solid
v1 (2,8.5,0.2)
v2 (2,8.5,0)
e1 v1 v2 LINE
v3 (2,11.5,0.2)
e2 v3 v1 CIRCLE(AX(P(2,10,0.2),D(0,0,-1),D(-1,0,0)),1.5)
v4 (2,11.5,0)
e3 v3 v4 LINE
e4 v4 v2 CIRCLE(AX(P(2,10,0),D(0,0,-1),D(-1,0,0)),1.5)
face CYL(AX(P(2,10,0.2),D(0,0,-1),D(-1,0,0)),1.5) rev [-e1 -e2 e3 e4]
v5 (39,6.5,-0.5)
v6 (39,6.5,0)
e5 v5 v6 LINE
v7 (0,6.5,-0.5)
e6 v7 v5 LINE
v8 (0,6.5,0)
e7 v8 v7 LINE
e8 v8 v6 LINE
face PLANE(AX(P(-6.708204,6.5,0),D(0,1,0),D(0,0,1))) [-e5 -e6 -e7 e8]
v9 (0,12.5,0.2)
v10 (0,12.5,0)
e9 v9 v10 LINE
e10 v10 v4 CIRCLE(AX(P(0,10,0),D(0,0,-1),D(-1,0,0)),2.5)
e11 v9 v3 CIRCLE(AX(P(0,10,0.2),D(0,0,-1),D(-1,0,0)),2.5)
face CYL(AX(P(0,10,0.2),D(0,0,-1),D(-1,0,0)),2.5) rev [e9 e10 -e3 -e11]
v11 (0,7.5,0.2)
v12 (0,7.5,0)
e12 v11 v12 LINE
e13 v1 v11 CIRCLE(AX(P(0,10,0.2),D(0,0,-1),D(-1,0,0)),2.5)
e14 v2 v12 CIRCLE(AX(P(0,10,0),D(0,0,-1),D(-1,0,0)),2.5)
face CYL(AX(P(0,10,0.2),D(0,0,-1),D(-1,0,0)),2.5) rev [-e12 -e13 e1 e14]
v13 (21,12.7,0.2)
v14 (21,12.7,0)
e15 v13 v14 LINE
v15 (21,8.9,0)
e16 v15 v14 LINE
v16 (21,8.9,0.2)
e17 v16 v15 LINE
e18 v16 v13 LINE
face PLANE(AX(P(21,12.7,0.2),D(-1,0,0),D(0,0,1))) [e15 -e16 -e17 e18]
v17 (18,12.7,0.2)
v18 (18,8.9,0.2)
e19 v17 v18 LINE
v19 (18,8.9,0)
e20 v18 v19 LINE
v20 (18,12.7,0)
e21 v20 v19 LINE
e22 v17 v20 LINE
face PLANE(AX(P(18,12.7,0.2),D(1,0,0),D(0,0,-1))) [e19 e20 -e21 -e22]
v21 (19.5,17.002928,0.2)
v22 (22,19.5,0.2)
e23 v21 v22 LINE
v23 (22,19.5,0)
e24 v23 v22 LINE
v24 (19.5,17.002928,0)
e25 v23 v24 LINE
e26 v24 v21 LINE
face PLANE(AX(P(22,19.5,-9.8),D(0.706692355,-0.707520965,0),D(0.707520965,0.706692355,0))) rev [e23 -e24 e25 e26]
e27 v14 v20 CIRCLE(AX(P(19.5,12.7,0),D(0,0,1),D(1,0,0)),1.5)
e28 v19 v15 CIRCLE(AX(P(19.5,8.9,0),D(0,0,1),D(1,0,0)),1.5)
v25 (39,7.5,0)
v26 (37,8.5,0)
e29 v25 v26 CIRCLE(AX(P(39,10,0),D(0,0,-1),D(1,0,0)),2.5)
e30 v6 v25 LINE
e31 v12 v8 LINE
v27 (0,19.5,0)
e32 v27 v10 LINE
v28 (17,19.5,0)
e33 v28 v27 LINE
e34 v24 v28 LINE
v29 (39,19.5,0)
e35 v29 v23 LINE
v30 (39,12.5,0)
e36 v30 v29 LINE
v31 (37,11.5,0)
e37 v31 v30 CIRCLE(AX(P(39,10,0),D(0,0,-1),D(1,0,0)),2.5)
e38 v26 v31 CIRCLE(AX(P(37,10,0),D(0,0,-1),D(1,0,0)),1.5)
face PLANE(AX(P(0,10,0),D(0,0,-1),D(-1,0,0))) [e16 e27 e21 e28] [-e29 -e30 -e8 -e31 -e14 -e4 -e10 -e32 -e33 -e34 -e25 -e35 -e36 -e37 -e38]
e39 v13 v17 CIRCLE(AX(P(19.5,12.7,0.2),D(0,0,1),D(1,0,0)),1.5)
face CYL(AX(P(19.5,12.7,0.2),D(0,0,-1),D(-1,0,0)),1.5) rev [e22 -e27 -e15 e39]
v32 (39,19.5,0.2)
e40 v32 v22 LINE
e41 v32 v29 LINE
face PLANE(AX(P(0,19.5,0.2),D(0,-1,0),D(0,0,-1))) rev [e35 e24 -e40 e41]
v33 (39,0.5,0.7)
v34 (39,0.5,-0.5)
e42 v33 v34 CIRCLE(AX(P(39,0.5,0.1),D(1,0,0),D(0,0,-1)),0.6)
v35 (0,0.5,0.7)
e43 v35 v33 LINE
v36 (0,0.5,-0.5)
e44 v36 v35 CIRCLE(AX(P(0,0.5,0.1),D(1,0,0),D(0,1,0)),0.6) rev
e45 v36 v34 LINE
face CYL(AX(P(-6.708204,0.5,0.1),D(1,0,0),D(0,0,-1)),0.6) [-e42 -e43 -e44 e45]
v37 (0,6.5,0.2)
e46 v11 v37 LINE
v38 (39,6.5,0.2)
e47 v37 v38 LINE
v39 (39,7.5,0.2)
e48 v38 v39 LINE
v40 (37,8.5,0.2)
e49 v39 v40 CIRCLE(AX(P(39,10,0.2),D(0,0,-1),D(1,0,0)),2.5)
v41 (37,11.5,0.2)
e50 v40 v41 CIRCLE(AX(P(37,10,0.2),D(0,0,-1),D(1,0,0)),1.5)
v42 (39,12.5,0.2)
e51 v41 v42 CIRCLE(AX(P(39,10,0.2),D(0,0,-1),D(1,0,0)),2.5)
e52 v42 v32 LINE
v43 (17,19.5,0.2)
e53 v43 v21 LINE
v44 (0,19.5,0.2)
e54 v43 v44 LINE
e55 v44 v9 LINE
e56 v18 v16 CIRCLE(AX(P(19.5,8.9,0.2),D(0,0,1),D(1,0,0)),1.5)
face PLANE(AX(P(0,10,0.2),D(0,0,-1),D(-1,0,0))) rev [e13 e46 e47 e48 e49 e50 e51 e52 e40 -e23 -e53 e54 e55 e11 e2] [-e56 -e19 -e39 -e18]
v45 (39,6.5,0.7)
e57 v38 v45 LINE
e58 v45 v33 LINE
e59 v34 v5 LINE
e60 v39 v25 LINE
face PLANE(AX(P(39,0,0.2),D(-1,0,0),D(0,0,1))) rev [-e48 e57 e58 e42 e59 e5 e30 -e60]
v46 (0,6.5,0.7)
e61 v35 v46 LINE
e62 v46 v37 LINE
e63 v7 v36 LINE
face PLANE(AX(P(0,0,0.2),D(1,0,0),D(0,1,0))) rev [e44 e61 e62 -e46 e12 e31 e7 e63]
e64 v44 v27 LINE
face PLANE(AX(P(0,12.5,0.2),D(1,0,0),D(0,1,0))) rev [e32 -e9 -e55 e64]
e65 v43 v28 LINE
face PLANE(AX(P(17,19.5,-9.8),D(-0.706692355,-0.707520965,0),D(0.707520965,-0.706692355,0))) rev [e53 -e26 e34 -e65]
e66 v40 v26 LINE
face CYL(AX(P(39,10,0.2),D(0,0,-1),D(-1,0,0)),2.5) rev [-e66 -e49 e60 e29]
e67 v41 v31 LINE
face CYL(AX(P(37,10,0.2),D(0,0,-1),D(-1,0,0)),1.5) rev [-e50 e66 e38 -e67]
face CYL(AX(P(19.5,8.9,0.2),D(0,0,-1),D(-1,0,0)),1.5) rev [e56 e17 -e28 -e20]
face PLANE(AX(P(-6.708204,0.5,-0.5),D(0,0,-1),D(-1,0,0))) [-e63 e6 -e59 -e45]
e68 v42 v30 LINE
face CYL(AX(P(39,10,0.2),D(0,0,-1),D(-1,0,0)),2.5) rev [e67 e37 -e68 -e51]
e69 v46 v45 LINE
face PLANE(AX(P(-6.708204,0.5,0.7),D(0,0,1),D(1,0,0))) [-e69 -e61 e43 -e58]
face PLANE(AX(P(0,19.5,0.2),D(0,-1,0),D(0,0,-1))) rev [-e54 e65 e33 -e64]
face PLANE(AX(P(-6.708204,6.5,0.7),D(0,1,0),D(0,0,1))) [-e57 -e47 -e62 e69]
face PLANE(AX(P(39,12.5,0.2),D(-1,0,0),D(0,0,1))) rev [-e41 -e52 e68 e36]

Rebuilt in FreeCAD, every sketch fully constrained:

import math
import FreeCAD as App
import Part
import Sketcher

V = App.Vector
Q = App.Units.Quantity


def add_polygon(sketch, points):
    """Adds a closed chain of lines whose ends are joined by coincident constraints."""
    first, n = sketch.GeometryCount, len(points)
    for a, b in zip(points, points[1:] + points[:1]):
        sketch.addGeometry(Part.LineSegment(App.Vector(*a, 0), App.Vector(*b, 0)), False)
    for i in range(n):
        sketch.addConstraint(Sketcher.Constraint("Coincident", first + i, 2, first + (i + 1) % n, 1))

doc = App.newDocument("Part")
params = doc.addObject("Spreadsheet::Sheet", "Params")
for row, (alias, value) in enumerate([
    ("sketch1_radius", "2.5 mm"),
    ("sketch1_radius2", "1.5 mm"),
    ("sketch1_width", "39 mm"),
    ("sketch1_height", "7 mm"),
    ("sketch1_height2", "7.5 mm"),
    ("pad1_length", "0.2 mm"),
    ("sketch2_radius", "0.6 mm"),
    ("sketch2_width", "6 mm"),
    ("sketch2_width2", "6.5 mm"),
    ("sketch2_height", "0.5 mm"),
    ("pad2_length", "39 mm"),
    ("sketch3_width", "5 mm"),
    ("pocket1_length", "10 mm"),
], start=1):
    params.set(f"A{row}", alias)
    params.set(f"B{row}", "=" + value)
    params.setAlias(f"B{row}", alias)

body = doc.addObject("PartDesign::Body", "Body")

# Sketch on XY plane
sketch1 = body.newObject("Sketcher::SketchObject", "Sketch")
sketch1.AttachmentSupport = (doc.getObject("XY_Plane"), [""])
sketch1.MapMode = "FlatFace"
sketch1.addGeometry([
    Part.LineSegment(V(0, 0, 0), V(39, 0, 0)),  # 0
    Part.LineSegment(V(39, 0, 0), V(39, 7.5, 0)),  # 1
    Part.ArcOfCircle(Part.Circle(V(39, 10, 0), V(0, 0, 1), 2.5), math.radians(-143), math.radians(-90)),  # 2
    Part.ArcOfCircle(Part.Circle(V(37, 10, 0), V(0, 0, 1), 1.5), math.radians(90), math.radians(270)),  # 3
    Part.ArcOfCircle(Part.Circle(V(39, 10, 0), V(0, 0, 1), 2.5), math.radians(90), math.radians(143)),  # 4
    Part.LineSegment(V(39, 12.5, 0), V(39, 19.5, 0)),  # 5
    Part.LineSegment(V(39, 19.5, 0), V(0, 19.5, 0)),  # 6
    Part.LineSegment(V(0, 19.5, 0), V(0, 12.5, 0)),  # 7
    Part.ArcOfCircle(Part.Circle(V(0, 10, 0), V(0, 0, 1), 2.5), math.radians(37), math.radians(90)),  # 8
    Part.ArcOfCircle(Part.Circle(V(2, 10, 0), V(0, 0, 1), 1.5), math.radians(-90), math.radians(90)),  # 9
    Part.ArcOfCircle(Part.Circle(V(0, 10, 0), V(0, 0, 1), 2.5), math.radians(-90), math.radians(-37)),  # 10
    Part.LineSegment(V(0, 7.5, 0), V(0, 0, 0)),  # 11
    Part.ArcOfCircle(Part.Circle(V(19.5, 12.7, 0), V(0, 0, 1), 1.5), math.radians(0), math.radians(180)),  # 12
    Part.LineSegment(V(21, 12.7, 0), V(21, 8.9, 0)),  # 13
    Part.ArcOfCircle(Part.Circle(V(19.5, 8.9, 0), V(0, 0, 1), 1.5), math.radians(180), math.radians(360)),  # 14
    Part.LineSegment(V(18, 8.9, 0), V(18, 12.7, 0)),  # 15
], False)
sketch1.addConstraint([
    Sketcher.Constraint("Coincident", 0, 2, 1, 1),
    Sketcher.Constraint("Coincident", 1, 2, 2, 2),
    Sketcher.Constraint("Coincident", 2, 1, 3, 2),
    Sketcher.Constraint("Coincident", 3, 1, 4, 2),
    Sketcher.Constraint("Coincident", 4, 1, 5, 1),
    Sketcher.Constraint("Coincident", 5, 2, 6, 1),
    Sketcher.Constraint("Coincident", 6, 2, 7, 1),
    Sketcher.Constraint("Coincident", 7, 2, 8, 2),
    Sketcher.Constraint("Coincident", 8, 1, 9, 2),
    Sketcher.Constraint("Coincident", 9, 1, 10, 2),
    Sketcher.Constraint("Coincident", 10, 1, 11, 1),
    Sketcher.Constraint("Coincident", 11, 2, 0, 1),
    Sketcher.Constraint("Tangent", 12, 1, 13, 1),
    Sketcher.Constraint("Tangent", 13, 2, 14, 2),
    Sketcher.Constraint("Tangent", 14, 1, 15, 1),
    Sketcher.Constraint("Tangent", 15, 2, 12, 2),
    Sketcher.Constraint("Horizontal", 0),
    Sketcher.Constraint("Vertical", 1),
    Sketcher.Constraint("Vertical", 5),
    Sketcher.Constraint("Horizontal", 6),
    Sketcher.Constraint("Vertical", 7),
    Sketcher.Constraint("Vertical", 11),
    Sketcher.Constraint("Vertical", 13),
    Sketcher.Constraint("Vertical", 15),
    Sketcher.Constraint("Coincident", 11, 2, -1, 1),
    Sketcher.Constraint("Coincident", 4, 3, 2, 3),
    Sketcher.Constraint("Coincident", 10, 3, 8, 3),
    Sketcher.Constraint("Equal", 2, 4),
    Sketcher.Constraint("Equal", 4, 8),
    Sketcher.Constraint("Equal", 3, 9),
    Sketcher.Constraint("Equal", 8, 10),
    Sketcher.Constraint("Equal", 9, 12),
    Sketcher.Constraint("PointOnObject", 8, 3, -2),
    Sketcher.Constraint("PointOnObject", 6, 2, -2),
    Sketcher.Constraint("Horizontal", 2, 3, 3, 3),
    Sketcher.Constraint("Horizontal", 4, 3, 8, 3),
    Sketcher.Constraint("Horizontal", 8, 3, 9, 3),
    Sketcher.Constraint("Vertical", 4, 3, 0, 2),
    Sketcher.Constraint("Vertical", 3, 3, 2, 1),
    Sketcher.Constraint("Vertical", 1, 2, 4, 1),
    Sketcher.Constraint("Vertical", 9, 3, 8, 1),
    Sketcher.Constraint("Radius", 2, Q("2.5 mm")),
    Sketcher.Constraint("Radius", 3, Q("1.5 mm")),
    Sketcher.Constraint("DistanceX", 0, 1, 0, 2, Q("39 mm")),
    Sketcher.Constraint("DistanceY", 5, 1, 5, 2, Q("7 mm")),
    Sketcher.Constraint("DistanceY", 1, 1, 1, 2, Q("7.5 mm")),
    Sketcher.Constraint("DistanceY", 13, 2, 13, 1, Q("3.8 mm")),
    Sketcher.Constraint("DistanceX", -1, 1, 12, 1, Q("21 mm")),
    Sketcher.Constraint("DistanceY", -1, 1, 12, 3, Q("12.7 mm")),
])
sketch1.setExpression("Constraints[41]", "Params.sketch1_radius")
sketch1.setExpression("Constraints[42]", "Params.sketch1_radius2")
sketch1.setExpression("Constraints[43]", "Params.sketch1_width")
sketch1.setExpression("Constraints[44]", "Params.sketch1_height")
sketch1.setExpression("Constraints[45]", "Params.sketch1_height2")
pad1 = body.newObject("PartDesign::Pad", "Pad")
pad1.Profile = sketch1
pad1.setExpression("Length", "Params.pad1_length")

# Sketch on YZ plane
sketch2 = body.newObject("Sketcher::SketchObject", "Sketch001")
sketch2.AttachmentSupport = (doc.getObject("YZ_Plane"), [""])
sketch2.MapMode = "FlatFace"
sketch2.AttachmentOffset = App.Placement(V(0, 0, 39), App.Rotation())
sketch2.addGeometry([
    Part.LineSegment(V(6.5, 0.7, 0), V(0.5, 0.7, 0)),  # 0
    Part.ArcOfCircle(Part.Circle(V(0.5, 0.1, 0), V(0, 0, 1), 0.6), math.radians(90), math.radians(270)),  # 1
    Part.LineSegment(V(0.5, -0.5, 0), V(6.5, -0.5, 0)),  # 2
    Part.LineSegment(V(6.5, -0.5, 0), V(6.5, 0, 0)),  # 3
    Part.LineSegment(V(6.5, 0, 0), V(0, 0, 0)),  # 4
    Part.LineSegment(V(0, 0, 0), V(0, 0.2, 0)),  # 5
    Part.LineSegment(V(0, 0.2, 0), V(6.5, 0.2, 0)),  # 6
    Part.LineSegment(V(6.5, 0.2, 0), V(6.5, 0.7, 0)),  # 7
], False)
sketch2.addConstraint([
    Sketcher.Constraint("Tangent", 0, 2, 1, 1),
    Sketcher.Constraint("Tangent", 1, 2, 2, 1),
    Sketcher.Constraint("Coincident", 2, 2, 3, 1),
    Sketcher.Constraint("Coincident", 3, 2, 4, 1),
    Sketcher.Constraint("Coincident", 4, 2, 5, 1),
    Sketcher.Constraint("Coincident", 5, 2, 6, 1),
    Sketcher.Constraint("Coincident", 6, 2, 7, 1),
    Sketcher.Constraint("Coincident", 7, 2, 0, 1),
    Sketcher.Constraint("Horizontal", 0),
    Sketcher.Constraint("Horizontal", 2),
    Sketcher.Constraint("Vertical", 3),
    Sketcher.Constraint("Horizontal", 4),
    Sketcher.Constraint("Vertical", 5),
    Sketcher.Constraint("Horizontal", 6),
    Sketcher.Constraint("Vertical", 7),
    Sketcher.Constraint("Coincident", 4, 2, -1, 1),
    Sketcher.Constraint("Vertical", 3, 2, 6, 2),
    Sketcher.Constraint("Equal", 3, 7),
    Sketcher.Constraint("Radius", 1, Q("0.6 mm")),
    Sketcher.Constraint("DistanceX", 0, 2, 0, 1, Q("6 mm")),
    Sketcher.Constraint("DistanceX", 4, 2, 4, 1, Q("6.5 mm")),
    Sketcher.Constraint("DistanceY", 3, 1, 3, 2, Q("0.5 mm")),
])
sketch2.setExpression("Constraints[18]", "Params.sketch2_radius")
sketch2.setExpression("Constraints[19]", "Params.sketch2_width")
sketch2.setExpression("Constraints[20]", "Params.sketch2_width2")
sketch2.setExpression("Constraints[21]", "Params.sketch2_height")
pad2 = body.newObject("PartDesign::Pad", "Pad001")
pad2.Profile = sketch2
pad2.setExpression("Length", "Params.pad2_length")
pad2.Reversed = True

# Sketch on XY plane
sketch3 = body.newObject("Sketcher::SketchObject", "Sketch002")
sketch3.AttachmentSupport = (doc.getObject("XY_Plane"), [""])
sketch3.MapMode = "FlatFace"
sketch3.AttachmentOffset = App.Placement(V(0, 0, 0.2), App.Rotation())
add_polygon(sketch3, [(17, 19.5), (19.5, 17), (22, 19.5), (22, 22.5), (17, 22.5)])  # lines 0-4
sketch3.addConstraint([
    Sketcher.Constraint("Vertical", 2),
    Sketcher.Constraint("Horizontal", 3),
    Sketcher.Constraint("Vertical", 4),
    Sketcher.Constraint("Horizontal", 1, 2, 4, 2),
    Sketcher.Constraint("Equal", 0, 1),
    Sketcher.Constraint("DistanceX", 3, 2, 3, 1, Q("5 mm")),
    Sketcher.Constraint("DistanceX", -1, 1, 1, 2, Q("22 mm")),
    Sketcher.Constraint("DistanceY", -1, 1, 1, 2, Q("19.5 mm")),
    Sketcher.Constraint("DistanceY", 2, 1, 2, 2, Q("3.039692 mm")),
    Sketcher.Constraint("Distance", 0, Q("3.533464 mm")),
])
sketch3.setExpression("Constraints[10]", "Params.sketch3_width")
pocket1 = body.newObject("PartDesign::Pocket", "Pocket")
pocket1.Profile = sketch3
pocket1.setExpression("Length", "Params.pocket1_length")

doc.recompute()
